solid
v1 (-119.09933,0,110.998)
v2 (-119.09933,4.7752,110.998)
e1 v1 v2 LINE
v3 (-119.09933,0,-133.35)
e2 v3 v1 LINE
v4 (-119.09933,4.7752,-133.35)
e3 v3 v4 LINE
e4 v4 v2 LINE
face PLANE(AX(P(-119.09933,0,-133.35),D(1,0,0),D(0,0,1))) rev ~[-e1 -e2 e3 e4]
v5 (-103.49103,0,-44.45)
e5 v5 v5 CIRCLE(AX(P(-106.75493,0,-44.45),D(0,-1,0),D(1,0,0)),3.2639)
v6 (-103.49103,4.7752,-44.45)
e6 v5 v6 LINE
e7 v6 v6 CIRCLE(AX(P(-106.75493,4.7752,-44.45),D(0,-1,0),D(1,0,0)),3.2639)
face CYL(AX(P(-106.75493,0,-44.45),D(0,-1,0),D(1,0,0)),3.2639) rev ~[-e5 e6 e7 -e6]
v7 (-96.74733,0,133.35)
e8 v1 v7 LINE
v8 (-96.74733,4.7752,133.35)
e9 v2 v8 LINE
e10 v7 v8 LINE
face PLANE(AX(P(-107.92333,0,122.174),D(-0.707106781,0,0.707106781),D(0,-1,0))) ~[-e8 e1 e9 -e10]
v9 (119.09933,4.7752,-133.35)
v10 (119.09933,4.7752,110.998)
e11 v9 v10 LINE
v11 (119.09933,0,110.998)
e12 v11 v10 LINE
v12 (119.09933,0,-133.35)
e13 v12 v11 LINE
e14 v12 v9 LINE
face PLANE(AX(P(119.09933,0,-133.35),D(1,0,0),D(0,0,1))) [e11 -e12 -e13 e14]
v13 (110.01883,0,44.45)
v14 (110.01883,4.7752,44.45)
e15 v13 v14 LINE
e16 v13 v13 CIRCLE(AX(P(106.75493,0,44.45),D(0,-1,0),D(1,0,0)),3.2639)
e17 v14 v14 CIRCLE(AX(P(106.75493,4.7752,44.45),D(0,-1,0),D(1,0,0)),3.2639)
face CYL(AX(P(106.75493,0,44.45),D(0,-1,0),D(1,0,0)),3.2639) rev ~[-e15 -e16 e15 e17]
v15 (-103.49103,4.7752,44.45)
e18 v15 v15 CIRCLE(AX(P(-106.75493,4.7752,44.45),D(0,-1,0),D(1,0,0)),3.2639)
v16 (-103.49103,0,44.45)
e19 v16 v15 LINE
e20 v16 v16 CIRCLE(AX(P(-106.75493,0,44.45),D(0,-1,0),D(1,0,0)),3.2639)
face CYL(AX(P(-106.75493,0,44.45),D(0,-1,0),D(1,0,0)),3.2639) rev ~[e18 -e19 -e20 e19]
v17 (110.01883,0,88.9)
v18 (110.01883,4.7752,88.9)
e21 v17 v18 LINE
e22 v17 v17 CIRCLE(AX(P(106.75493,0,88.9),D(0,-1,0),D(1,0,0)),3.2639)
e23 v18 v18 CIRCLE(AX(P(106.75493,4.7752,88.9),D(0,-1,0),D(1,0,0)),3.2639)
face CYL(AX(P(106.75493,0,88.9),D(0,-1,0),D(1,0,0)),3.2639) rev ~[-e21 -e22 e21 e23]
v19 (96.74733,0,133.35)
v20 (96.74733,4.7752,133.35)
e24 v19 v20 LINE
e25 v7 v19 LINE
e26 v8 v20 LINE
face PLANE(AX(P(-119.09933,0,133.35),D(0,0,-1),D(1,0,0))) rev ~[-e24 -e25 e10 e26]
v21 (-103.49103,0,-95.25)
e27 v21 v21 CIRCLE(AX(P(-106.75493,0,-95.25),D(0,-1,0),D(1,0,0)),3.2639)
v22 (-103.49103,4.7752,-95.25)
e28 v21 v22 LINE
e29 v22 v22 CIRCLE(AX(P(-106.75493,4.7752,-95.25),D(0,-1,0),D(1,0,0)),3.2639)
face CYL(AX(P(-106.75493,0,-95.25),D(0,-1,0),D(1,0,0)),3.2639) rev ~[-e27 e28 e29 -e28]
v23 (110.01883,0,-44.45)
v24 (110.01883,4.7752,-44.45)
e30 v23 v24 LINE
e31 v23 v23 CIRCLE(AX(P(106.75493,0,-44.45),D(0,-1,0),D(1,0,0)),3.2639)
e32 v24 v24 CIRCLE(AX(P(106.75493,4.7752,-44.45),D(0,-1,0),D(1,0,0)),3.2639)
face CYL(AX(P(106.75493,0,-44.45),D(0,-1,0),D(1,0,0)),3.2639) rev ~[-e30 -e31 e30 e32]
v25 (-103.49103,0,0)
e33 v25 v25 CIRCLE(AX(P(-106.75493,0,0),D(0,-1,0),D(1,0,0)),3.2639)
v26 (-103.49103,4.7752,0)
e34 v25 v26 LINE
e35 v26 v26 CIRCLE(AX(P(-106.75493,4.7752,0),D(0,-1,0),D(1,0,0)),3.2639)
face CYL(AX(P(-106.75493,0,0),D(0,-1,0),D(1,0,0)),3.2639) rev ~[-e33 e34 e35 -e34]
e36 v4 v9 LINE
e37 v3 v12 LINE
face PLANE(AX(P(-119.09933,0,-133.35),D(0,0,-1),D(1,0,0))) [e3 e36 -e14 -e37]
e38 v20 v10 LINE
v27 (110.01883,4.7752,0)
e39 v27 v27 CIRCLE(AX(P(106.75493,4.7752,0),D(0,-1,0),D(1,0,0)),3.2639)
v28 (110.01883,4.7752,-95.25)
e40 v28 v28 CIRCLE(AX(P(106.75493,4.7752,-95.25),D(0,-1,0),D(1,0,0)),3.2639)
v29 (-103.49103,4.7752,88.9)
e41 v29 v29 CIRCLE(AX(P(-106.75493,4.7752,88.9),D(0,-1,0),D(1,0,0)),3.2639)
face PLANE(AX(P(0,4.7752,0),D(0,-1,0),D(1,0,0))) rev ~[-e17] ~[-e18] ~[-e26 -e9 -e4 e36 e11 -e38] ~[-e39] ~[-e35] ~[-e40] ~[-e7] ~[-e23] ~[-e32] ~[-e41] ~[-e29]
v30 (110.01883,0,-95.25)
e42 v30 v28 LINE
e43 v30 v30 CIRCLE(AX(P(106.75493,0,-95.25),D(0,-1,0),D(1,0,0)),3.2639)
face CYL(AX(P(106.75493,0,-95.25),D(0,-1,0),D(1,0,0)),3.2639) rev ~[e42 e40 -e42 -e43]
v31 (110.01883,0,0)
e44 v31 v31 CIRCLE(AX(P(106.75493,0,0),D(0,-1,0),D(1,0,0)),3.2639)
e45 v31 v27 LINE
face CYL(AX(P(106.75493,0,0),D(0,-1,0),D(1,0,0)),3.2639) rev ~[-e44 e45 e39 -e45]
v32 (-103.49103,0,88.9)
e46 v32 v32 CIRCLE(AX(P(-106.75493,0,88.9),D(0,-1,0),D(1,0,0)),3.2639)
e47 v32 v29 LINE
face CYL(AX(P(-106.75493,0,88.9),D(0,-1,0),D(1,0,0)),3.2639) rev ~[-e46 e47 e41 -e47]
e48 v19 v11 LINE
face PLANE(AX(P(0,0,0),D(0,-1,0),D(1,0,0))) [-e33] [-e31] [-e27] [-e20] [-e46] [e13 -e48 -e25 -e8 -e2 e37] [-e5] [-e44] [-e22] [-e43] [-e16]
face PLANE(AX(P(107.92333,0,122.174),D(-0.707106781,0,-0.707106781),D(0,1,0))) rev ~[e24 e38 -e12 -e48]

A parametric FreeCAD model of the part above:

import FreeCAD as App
import Part
import Sketcher

V = App.Vector
Q = App.Units.Quantity


def edges_at(feature, points):
    """Names of the edges that pass closest to the given points."""
    edges = feature.Shape.Edges
    near = lambda p: min(range(len(edges)), key=lambda i: edges[i].distToShape(Part.Vertex(*p))[0])
    return sorted({f"Edge{near(p) + 1}" for p in points})


def add_polygon(sketch, points):
    """Adds a closed chain of lines whose ends are joined by coincident constraints."""
    first, n = sketch.GeometryCount, len(points)
    for a, b in zip(points, points[1:] + points[:1]):
        sketch.addGeometry(Part.LineSegment(App.Vector(*a, 0), App.Vector(*b, 0)), False)
    for i in range(n):
        sketch.addConstraint(Sketcher.Constraint("Coincident", first + i, 2, first + (i + 1) % n, 1))

doc = App.newDocument("Part")
params = doc.addObject("Spreadsheet::Sheet", "Params")
for row, (alias, value) in enumerate([
    ("sketch1_diameter", "0.257 in"),
    ("sketch1_height", "10.5 in"),
    ("pad1_length", "0.188 in"),
    ("chamfer_size", "0.88 in"),
], start=1):
    params.set(f"A{row}", alias)
    params.set(f"B{row}", "=" + value)
    params.setAlias(f"B{row}", alias)

body = doc.addObject("PartDesign::Body", "Body")

sketch1 = body.newObject("Sketcher::SketchObject", "Sketch")
sketch1.AttachmentSupport = (doc.getObject("XZ_Plane"), [""])
sketch1.MapMode = "FlatFace"
add_polygon(sketch1, [(-119.1, 133.3), (-119.1, -133.3), (119.1, -133.3), (119.1, 133.3)])
sketch1.addGeometry(Part.Circle(V(-106.8, -95.2, 0), V(0, 0, 1), 3.3), False)
sketch1.addGeometry(Part.Circle(V(-106.8, -44.5, 0), V(0, 0, 1), 3.3), False)
sketch1.addGeometry(Part.Circle(V(106.8, -95.2, 0), V(0, 0, 1), 3.3), False)
sketch1.addGeometry(Part.Circle(V(106.8, -44.5, 0), V(0, 0, 1), 3.3), False)
sketch1.addGeometry(Part.Circle(V(-106.8, 0, 0), V(0, 0, 1), 3.3), False)
sketch1.addGeometry(Part.Circle(V(-106.8, 44.5, 0), V(0, 0, 1), 3.3), False)
sketch1.addGeometry(Part.Circle(V(-106.8, 88.9, 0), V(0, 0, 1), 3.3), False)
sketch1.addGeometry(Part.Circle(V(106.8, 0, 0), V(0, 0, 1), 3.3), False)
sketch1.addGeometry(Part.Circle(V(106.8, 44.5, 0), V(0, 0, 1), 3.3), False)
sketch1.addGeometry(Part.Circle(V(106.8, 88.9, 0), V(0, 0, 1), 3.3), False)
sketch1.addConstraint([
    Sketcher.Constraint("Vertical", 0),
    Sketcher.Constraint("Horizontal", 1),
    Sketcher.Constraint("Vertical", 2),
    Sketcher.Constraint("Horizontal", 3),
    Sketcher.Constraint("Equal", 4, 5),
    Sketcher.Constraint("Equal", 5, 6),
    Sketcher.Constraint("Equal", 6, 7),
    Sketcher.Constraint("Equal", 7, 8),
    Sketcher.Constraint("Equal", 8, 9),
    Sketcher.Constraint("Equal", 9, 10),
    Sketcher.Constraint("Equal", 10, 11),
    Sketcher.Constraint("Equal", 11, 12),
    Sketcher.Constraint("Equal", 12, 13),
    Sketcher.Constraint("Symmetric", 7, 3, 9, 3, -1, 1),
    Sketcher.Constraint("Symmetric", 8, 3, 11, 3, -1, 1),
    Sketcher.Constraint("Symmetric", 5, 3, 12, 3, -1, 1),
    Sketcher.Constraint("Symmetric", 0, 2, 2, 2, -1, 1),
    Sketcher.Constraint("Symmetric", 4, 3, 6, 3, -2),
    Sketcher.Constraint("Symmetric", 5, 3, 7, 3, -2),
    Sketcher.Constraint("Symmetric", 10, 3, 13, 3, -2),
    Sketcher.Constraint("PointOnObject", 8, 3, -1),
    Sketcher.Constraint("Vertical", 4, 3, 5, 3),
    Sketcher.Constraint("Vertical", 5, 3, 8, 3),
    Sketcher.Constraint("Vertical", 9, 3, 10, 3),
    Sketcher.Constraint("Diameter", 4, Q("0.257 in")),
    Sketcher.Constraint("DistanceY", 0, 2, 0, 1, Q("10.5 in")),
    Sketcher.Constraint("DistanceY", 4, 3, 5, 3, Q("2 in")),
    Sketcher.Constraint("DistanceY", 0, 2, 9, 3, Q("7 in")),
    Sketcher.Constraint("DistanceY", -1, 1, 10, 3, Q("3.5 in")),
    Sketcher.Constraint("DistanceX", 1, 1, 1, 2, Q("9.3779 in")),
    Sketcher.Constraint("DistanceX", 0, 2, 4, 3, Q("0.486 in")),
])
sketch1.setExpression("Constraints[28]", "Params.sketch1_diameter")
sketch1.setExpression("Constraints[29]", "Params.sketch1_height")
pad1 = body.newObject("PartDesign::Pad", "Pad")
pad1.Profile = sketch1
pad1.setExpression("Length", "Params.pad1_length")
pad1.Reversed = True
doc.recompute()

chamfer = body.newObject("PartDesign::Chamfer", "Chamfer")
chamfer.Base = (pad1, edges_at(pad1, [(119.099, 2.388, 133.35), (-119.099, 2.388, 133.35)]))
chamfer.setExpression("Size", "Params.chamfer_size")

doc.recompute()
